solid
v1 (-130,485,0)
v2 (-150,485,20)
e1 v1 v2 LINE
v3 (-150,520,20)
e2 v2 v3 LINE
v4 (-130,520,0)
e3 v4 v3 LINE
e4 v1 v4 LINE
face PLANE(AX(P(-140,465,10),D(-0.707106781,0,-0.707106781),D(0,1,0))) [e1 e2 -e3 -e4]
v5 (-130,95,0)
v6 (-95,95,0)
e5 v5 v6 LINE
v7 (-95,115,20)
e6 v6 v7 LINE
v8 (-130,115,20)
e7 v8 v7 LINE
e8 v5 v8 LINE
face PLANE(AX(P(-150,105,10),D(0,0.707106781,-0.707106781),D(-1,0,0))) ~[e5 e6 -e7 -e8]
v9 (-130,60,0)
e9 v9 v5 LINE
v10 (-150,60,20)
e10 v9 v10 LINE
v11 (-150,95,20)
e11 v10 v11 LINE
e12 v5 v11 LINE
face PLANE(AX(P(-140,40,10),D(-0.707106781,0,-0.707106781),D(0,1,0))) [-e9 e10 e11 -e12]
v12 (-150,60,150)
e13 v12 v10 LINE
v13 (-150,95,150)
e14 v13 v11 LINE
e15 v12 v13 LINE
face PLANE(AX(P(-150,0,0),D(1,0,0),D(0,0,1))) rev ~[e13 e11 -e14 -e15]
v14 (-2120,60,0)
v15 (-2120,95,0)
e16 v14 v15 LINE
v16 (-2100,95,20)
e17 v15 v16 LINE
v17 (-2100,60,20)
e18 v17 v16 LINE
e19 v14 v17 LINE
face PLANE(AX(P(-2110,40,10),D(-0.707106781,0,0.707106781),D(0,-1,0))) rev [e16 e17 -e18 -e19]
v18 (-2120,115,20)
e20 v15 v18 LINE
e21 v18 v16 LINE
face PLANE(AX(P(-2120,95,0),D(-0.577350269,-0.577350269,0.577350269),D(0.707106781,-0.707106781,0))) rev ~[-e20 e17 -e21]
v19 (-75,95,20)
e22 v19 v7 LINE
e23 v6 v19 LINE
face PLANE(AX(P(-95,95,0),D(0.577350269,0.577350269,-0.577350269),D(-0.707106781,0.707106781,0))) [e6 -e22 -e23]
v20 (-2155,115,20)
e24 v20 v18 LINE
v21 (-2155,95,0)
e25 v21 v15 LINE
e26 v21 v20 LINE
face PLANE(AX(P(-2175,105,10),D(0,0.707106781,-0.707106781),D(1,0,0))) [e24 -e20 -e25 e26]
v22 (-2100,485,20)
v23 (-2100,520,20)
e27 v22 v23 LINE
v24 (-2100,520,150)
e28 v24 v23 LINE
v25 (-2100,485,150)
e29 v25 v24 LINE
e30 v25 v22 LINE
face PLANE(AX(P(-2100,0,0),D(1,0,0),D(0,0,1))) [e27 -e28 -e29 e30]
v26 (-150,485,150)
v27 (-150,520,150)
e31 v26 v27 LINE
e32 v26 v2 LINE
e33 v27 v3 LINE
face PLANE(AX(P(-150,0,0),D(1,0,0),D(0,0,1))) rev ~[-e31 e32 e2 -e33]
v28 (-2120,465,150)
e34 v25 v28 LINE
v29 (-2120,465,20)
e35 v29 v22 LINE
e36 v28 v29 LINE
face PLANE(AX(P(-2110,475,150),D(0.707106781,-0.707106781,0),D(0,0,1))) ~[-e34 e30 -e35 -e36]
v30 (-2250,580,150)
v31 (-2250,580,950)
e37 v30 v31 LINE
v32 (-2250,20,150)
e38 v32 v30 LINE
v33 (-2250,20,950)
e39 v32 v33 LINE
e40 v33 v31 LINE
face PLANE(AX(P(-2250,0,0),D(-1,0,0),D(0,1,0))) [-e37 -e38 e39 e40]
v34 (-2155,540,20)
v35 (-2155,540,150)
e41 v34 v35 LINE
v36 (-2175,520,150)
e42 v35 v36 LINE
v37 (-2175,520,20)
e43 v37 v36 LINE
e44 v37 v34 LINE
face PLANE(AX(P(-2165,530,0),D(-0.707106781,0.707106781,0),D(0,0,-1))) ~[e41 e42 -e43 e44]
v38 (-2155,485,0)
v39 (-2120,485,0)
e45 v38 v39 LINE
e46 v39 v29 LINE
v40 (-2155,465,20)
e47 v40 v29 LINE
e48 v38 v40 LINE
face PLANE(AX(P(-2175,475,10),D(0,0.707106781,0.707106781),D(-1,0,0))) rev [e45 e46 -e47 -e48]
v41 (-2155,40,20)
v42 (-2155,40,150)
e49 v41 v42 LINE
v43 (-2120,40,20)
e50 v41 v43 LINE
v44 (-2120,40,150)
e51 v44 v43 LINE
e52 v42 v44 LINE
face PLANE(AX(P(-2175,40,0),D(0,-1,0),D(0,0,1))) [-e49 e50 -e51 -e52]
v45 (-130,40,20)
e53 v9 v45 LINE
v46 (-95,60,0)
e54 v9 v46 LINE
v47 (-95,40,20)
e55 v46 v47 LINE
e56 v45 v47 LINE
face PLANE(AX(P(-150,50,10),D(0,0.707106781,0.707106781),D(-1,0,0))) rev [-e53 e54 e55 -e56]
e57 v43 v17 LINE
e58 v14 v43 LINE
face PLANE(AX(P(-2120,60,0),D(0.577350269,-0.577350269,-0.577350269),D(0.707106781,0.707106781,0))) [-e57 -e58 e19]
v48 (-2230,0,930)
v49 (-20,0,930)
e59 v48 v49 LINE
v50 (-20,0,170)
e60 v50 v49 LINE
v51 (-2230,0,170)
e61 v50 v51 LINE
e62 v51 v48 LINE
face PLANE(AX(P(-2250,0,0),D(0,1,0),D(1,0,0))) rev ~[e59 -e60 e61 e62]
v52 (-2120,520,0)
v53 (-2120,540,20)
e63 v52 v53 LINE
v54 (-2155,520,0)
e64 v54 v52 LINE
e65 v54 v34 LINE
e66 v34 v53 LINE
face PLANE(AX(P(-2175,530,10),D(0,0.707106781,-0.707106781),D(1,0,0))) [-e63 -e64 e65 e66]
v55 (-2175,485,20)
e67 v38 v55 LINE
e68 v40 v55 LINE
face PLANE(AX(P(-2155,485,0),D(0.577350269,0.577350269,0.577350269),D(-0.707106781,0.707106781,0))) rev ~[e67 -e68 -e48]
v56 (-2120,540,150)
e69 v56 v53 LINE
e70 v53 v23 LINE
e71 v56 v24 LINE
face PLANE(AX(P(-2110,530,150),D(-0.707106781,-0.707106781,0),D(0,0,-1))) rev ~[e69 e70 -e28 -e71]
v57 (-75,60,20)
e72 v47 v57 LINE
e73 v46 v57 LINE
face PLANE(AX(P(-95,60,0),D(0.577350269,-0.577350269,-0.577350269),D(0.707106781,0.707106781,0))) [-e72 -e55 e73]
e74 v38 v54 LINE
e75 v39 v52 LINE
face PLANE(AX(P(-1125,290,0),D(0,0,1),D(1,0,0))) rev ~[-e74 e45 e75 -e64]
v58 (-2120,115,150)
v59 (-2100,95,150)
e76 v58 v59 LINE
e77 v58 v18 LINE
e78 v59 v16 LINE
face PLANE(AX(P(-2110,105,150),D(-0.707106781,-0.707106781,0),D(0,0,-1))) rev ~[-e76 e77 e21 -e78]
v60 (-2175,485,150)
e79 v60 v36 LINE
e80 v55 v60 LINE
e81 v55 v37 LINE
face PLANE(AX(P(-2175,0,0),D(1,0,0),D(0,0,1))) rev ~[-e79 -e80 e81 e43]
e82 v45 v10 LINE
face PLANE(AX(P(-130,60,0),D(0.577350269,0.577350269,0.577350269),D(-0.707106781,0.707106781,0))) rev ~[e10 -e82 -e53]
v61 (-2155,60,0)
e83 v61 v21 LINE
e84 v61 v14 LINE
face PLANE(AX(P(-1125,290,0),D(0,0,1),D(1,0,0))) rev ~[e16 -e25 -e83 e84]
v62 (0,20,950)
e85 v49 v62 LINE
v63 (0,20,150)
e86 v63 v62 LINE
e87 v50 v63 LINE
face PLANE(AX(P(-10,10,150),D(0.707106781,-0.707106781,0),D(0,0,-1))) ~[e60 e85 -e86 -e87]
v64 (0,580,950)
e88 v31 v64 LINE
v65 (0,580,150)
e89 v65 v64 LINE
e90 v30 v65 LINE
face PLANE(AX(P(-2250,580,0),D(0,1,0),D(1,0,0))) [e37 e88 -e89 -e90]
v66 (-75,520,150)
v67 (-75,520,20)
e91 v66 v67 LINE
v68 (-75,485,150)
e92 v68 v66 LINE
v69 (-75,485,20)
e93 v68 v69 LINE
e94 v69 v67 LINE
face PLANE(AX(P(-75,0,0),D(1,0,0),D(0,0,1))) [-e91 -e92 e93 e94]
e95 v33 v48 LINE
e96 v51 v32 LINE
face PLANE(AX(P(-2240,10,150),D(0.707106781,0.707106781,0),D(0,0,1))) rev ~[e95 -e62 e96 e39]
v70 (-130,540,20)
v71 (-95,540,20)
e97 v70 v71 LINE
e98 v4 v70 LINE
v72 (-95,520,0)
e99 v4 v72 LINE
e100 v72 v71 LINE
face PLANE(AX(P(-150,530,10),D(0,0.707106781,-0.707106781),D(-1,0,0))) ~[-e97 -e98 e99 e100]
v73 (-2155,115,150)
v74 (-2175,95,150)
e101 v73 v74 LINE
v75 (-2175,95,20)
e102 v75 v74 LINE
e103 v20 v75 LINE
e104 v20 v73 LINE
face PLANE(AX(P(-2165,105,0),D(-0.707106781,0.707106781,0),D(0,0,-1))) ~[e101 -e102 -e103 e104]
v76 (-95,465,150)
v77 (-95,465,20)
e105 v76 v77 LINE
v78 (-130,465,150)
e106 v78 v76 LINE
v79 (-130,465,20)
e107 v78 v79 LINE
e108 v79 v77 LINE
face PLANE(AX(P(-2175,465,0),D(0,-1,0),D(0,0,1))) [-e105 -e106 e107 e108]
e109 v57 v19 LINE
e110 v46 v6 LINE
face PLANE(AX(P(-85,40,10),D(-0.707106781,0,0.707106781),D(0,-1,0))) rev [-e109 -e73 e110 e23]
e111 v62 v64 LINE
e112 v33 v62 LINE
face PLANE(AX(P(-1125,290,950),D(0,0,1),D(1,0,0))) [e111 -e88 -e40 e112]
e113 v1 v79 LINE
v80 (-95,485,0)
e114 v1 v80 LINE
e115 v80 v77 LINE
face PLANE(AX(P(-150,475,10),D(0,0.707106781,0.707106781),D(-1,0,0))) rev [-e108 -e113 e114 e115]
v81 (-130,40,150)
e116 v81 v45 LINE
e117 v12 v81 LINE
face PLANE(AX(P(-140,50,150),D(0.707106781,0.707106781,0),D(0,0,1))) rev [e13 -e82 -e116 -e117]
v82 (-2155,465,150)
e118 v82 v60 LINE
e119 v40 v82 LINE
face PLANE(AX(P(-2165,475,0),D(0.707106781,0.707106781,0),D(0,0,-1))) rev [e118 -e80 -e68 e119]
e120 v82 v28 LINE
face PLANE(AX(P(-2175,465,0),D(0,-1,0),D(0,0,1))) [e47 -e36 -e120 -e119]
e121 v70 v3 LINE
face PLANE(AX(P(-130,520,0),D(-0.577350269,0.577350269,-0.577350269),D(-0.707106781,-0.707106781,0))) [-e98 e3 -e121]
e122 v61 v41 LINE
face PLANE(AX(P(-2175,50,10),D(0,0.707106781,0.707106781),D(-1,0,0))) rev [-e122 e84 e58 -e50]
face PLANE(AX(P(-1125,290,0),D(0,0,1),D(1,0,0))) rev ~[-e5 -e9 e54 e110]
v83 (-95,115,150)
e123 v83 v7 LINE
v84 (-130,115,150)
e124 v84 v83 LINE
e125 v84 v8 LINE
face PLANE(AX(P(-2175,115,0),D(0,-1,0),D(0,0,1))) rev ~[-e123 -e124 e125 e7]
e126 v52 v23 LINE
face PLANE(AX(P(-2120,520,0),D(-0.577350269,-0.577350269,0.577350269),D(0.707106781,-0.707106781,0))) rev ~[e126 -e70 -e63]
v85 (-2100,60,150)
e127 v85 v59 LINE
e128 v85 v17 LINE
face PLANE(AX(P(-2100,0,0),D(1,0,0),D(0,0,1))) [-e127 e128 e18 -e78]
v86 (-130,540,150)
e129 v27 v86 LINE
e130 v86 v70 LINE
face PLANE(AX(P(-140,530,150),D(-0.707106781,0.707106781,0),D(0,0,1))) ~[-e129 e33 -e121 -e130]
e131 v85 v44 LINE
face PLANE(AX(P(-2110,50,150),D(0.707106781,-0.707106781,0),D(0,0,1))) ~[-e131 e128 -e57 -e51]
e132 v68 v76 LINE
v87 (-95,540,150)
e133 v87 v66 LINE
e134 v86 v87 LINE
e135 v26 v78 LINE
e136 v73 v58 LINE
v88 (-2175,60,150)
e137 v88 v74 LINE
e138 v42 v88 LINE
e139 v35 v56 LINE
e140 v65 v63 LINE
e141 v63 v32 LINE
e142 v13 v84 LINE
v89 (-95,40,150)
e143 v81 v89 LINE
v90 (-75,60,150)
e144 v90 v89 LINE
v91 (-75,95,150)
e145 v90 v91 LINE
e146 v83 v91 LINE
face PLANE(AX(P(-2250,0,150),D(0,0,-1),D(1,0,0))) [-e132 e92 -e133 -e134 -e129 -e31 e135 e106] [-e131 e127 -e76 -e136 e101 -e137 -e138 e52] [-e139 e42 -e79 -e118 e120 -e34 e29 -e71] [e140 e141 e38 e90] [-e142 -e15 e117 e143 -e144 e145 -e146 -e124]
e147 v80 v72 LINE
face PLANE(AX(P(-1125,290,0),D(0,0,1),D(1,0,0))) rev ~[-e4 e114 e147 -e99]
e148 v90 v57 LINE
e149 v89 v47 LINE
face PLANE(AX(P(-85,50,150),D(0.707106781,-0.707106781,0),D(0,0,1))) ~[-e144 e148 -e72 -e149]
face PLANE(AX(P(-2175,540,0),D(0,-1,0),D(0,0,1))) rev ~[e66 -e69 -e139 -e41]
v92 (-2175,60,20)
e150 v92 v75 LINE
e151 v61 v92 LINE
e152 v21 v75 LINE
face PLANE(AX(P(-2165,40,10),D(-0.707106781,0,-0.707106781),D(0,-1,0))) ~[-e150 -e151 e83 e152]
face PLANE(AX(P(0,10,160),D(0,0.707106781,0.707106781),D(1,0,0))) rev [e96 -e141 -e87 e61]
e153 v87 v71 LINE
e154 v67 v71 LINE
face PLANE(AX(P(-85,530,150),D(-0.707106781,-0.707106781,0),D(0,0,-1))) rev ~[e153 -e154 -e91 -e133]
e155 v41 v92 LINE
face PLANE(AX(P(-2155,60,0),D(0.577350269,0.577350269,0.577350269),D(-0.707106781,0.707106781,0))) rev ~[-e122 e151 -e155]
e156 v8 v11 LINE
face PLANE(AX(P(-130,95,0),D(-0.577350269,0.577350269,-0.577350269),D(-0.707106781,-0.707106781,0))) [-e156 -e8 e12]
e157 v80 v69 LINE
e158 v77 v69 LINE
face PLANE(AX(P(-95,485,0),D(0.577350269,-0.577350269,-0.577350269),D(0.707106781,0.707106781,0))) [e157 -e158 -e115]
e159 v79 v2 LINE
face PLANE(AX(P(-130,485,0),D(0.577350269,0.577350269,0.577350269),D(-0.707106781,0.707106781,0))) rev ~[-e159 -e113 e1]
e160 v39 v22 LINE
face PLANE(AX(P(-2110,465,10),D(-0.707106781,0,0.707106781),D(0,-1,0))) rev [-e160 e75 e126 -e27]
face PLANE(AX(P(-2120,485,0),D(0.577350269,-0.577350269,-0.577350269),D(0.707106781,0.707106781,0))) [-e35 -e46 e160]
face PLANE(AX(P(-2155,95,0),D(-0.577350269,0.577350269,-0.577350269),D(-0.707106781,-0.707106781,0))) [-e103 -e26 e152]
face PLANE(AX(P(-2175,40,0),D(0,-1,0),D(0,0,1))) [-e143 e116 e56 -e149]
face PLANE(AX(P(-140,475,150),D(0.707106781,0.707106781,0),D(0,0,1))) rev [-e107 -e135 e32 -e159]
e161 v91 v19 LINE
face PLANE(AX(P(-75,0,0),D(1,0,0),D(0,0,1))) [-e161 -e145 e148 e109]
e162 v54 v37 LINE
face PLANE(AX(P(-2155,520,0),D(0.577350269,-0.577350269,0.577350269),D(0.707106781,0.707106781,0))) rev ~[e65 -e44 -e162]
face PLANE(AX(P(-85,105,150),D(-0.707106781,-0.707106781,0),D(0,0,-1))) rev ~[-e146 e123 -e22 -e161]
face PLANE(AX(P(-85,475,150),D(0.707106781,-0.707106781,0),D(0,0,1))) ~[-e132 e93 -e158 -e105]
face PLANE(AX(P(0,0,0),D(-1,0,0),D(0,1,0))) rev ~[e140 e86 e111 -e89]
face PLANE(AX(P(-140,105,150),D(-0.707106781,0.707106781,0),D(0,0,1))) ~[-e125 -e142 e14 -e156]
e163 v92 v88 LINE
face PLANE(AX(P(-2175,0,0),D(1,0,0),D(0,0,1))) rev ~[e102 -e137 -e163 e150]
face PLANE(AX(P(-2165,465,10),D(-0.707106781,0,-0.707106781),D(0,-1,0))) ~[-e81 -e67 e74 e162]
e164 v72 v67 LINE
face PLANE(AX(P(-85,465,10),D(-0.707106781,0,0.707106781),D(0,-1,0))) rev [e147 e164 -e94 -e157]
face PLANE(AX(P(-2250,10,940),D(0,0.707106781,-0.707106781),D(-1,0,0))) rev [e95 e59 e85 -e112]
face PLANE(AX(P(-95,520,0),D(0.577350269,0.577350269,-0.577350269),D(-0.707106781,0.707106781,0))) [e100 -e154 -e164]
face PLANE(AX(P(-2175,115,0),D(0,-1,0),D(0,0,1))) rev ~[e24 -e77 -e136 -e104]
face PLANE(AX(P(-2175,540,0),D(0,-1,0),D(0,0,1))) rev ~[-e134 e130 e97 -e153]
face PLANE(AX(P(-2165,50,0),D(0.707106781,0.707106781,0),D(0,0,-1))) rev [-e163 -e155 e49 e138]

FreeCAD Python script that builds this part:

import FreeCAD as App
import Part
import Sketcher
from FreeCAD import Vector
Q = App.Units.Quantity


def edges_at(feature, points):
    """Names of the edges that pass closest to the given points."""
    edges = feature.Shape.Edges
    near = lambda p: min(range(len(edges)), key=lambda i: edges[i].distToShape(Part.Vertex(*p))[0])
    return sorted({f"Edge{near(p) + 1}" for p in points})

doc = App.newDocument("Part")
body = doc.addObject("PartDesign::Body", "Body")

# Sketch on XY plane
sketch1 = body.newObject("Sketcher::SketchObject", "Sketch")
sketch1.AttachmentSupport = (doc.getObject("XY_Plane"), [""])
sketch1.MapMode = "FlatFace"
sketch1.addGeometry([
    Part.LineSegment(Vector(-2250, 580, 0), Vector(-2250, 0, 0)),
    Part.LineSegment(Vector(-2250, 0, 0), Vector(0, 0, 0)),
    Part.LineSegment(Vector(0, 0, 0), Vector(0, 580, 0)),
    Part.LineSegment(Vector(0, 580, 0), Vector(-2250, 580, 0)),
], False)
sketch1.addConstraint([
    Sketcher.Constraint("Coincident", 0, 2, 1, 1),
    Sketcher.Constraint("Coincident", 1, 2, 2, 1),
    Sketcher.Constraint("Coincident", 2, 2, 3, 1),
    Sketcher.Constraint("Coincident", 3, 2, 0, 1),
    Sketcher.Constraint("Vertical", 0),
    Sketcher.Constraint("Horizontal", 1),
    Sketcher.Constraint("Vertical", 2),
    Sketcher.Constraint("Horizontal", 3),
    Sketcher.Constraint("Coincident", 1, 2, -1, 1),
    Sketcher.Constraint("DistanceX", 1, 1, 1, 2, Q("2250 mm")),
    Sketcher.Constraint("DistanceY", 0, 2, 0, 1, Q("580 mm")),
])
pad1 = body.newObject("PartDesign::Pad", "Pad")
pad1.Profile = sketch1
pad1.Length = 950

# Sketch on XZ plane
sketch2 = body.newObject("Sketcher::SketchObject", "Sketch001")
sketch2.AttachmentSupport = (doc.getObject("XZ_Plane"), [""])
sketch2.MapMode = "FlatFace"
sketch2.addGeometry([
    Part.LineSegment(Vector(-2100, 150, 0), Vector(-2100, 0, 0)),  # 0
    Part.LineSegment(Vector(-2100, 0, 0), Vector(-150, 0, 0)),  # 1
    Part.LineSegment(Vector(-150, 0, 0), Vector(-150, 150, 0)),  # 2
    Part.LineSegment(Vector(-150, 150, 0), Vector(-2100, 150, 0)),  # 3
    Part.LineSegment(Vector(-2250, 150, 0), Vector(-2250, 0, 0)),  # 4
    Part.LineSegment(Vector(-2250, 0, 0), Vector(-2175, 0, 0)),  # 5
    Part.LineSegment(Vector(-2175, 0, 0), Vector(-2175, 150, 0)),  # 6
    Part.LineSegment(Vector(-2175, 150, 0), Vector(-2250, 150, 0)),  # 7
    Part.LineSegment(Vector(-75, 150, 0), Vector(-75, 0, 0)),  # 8
    Part.LineSegment(Vector(-75, 0, 0), Vector(0, 0, 0)),  # 9
    Part.LineSegment(Vector(0, 0, 0), Vector(0, 150, 0)),  # 10
    Part.LineSegment(Vector(0, 150, 0), Vector(-75, 150, 0)),  # 11
], False)
sketch2.addConstraint([
    Sketcher.Constraint("Coincident", 0, 2, 1, 1),
    Sketcher.Constraint("Coincident", 1, 2, 2, 1),
    Sketcher.Constraint("Coincident", 2, 2, 3, 1),
    Sketcher.Constraint("Coincident", 3, 2, 0, 1),
    Sketcher.Constraint("Coincident", 4, 2, 5, 1),
    Sketcher.Constraint("Coincident", 5, 2, 6, 1),
    Sketcher.Constraint("Coincident", 6, 2, 7, 1),
    Sketcher.Constraint("Coincident", 7, 2, 4, 1),
    Sketcher.Constraint("Coincident", 8, 2, 9, 1),
    Sketcher.Constraint("Coincident", 9, 2, 10, 1),
    Sketcher.Constraint("Coincident", 10, 2, 11, 1),
    Sketcher.Constraint("Coincident", 11, 2, 8, 1),
    Sketcher.Constraint("Vertical", 0),
    Sketcher.Constraint("Horizontal", 1),
    Sketcher.Constraint("Vertical", 2),
    Sketcher.Constraint("Horizontal", 3),
    Sketcher.Constraint("Vertical", 4),
    Sketcher.Constraint("Horizontal", 5),
    Sketcher.Constraint("Vertical", 6),
    Sketcher.Constraint("Horizontal", 7),
    Sketcher.Constraint("Vertical", 8),
    Sketcher.Constraint("Horizontal", 9),
    Sketcher.Constraint("Vertical", 10),
    Sketcher.Constraint("Horizontal", 11),
    Sketcher.Constraint("Coincident", 9, 2, -1, 1),
    Sketcher.Constraint("PointOnObject", 0, 2, -1),
    Sketcher.Constraint("PointOnObject", 4, 2, -1),
    Sketcher.Constraint("Horizontal", 3, 2, 6, 2),
    Sketcher.Constraint("Horizontal", 7, 2, 10, 2),
    Sketcher.Constraint("Equal", 7, 9),
    Sketcher.Constraint("DistanceX", 1, 1, 1, 2, Q("1950 mm")),
    Sketcher.Constraint("DistanceX", 5, 1, 5, 2, Q("75 mm")),
    Sketcher.Constraint("DistanceY", 0, 2, 0, 1, Q("150 mm")),
    Sketcher.Constraint("DistanceX", 0, 2, -1, 1, Q("2100 mm")),
    Sketcher.Constraint("DistanceX", 4, 2, -1, 1, Q("2250 mm")),
])
pocket1 = body.newObject("PartDesign::Pocket", "Pocket")
pocket1.Profile = sketch2
pocket1.Length = 600

# Sketch on YZ plane
sketch3 = body.newObject("Sketcher::SketchObject", "Sketch002")
sketch3.AttachmentSupport = (doc.getObject("YZ_Plane"), [""])
sketch3.MapMode = "FlatFace"
sketch3.AttachmentOffset = App.Placement(Vector(0, 0, -2175), App.Rotation())
sketch3.addGeometry([
    Part.LineSegment(Vector(580, 150, 0), Vector(580, 0, 0)),  # 0
    Part.LineSegment(Vector(580, 0, 0), Vector(540, 0, 0)),  # 1
    Part.LineSegment(Vector(540, 0, 0), Vector(540, 150, 0)),  # 2
    Part.LineSegment(Vector(540, 150, 0), Vector(580, 150, 0)),  # 3
    Part.LineSegment(Vector(40, 150, 0), Vector(40, 0, 0)),  # 4
    Part.LineSegment(Vector(40, 0, 0), Vector(0, 0, 0)),  # 5
    Part.LineSegment(Vector(0, 0, 0), Vector(0, 150, 0)),  # 6
    Part.LineSegment(Vector(0, 150, 0), Vector(40, 150, 0)),  # 7
    Part.LineSegment(Vector(465, 150, 0), Vector(465, 0, 0)),  # 8
    Part.LineSegment(Vector(465, 0, 0), Vector(115, 0, 0)),  # 9
    Part.LineSegment(Vector(115, 0, 0), Vector(115, 150, 0)),  # 10
    Part.LineSegment(Vector(115, 150, 0), Vector(465, 150, 0)),  # 11
], False)
sketch3.addConstraint([
    Sketcher.Constraint("Coincident", 0, 2, 1, 1),
    Sketcher.Constraint("Coincident", 1, 2, 2, 1),
    Sketcher.Constraint("Coincident", 2, 2, 3, 1),
    Sketcher.Constraint("Coincident", 3, 2, 0, 1),
    Sketcher.Constraint("Coincident", 4, 2, 5, 1),
    Sketcher.Constraint("Coincident", 5, 2, 6, 1),
    Sketcher.Constraint("Coincident", 6, 2, 7, 1),
    Sketcher.Constraint("Coincident", 7, 2, 4, 1),
    Sketcher.Constraint("Coincident", 8, 2, 9, 1),
    Sketcher.Constraint("Coincident", 9, 2, 10, 1),
    Sketcher.Constraint("Coincident", 10, 2, 11, 1),
    Sketcher.Constraint("Coincident", 11, 2, 8, 1),
    Sketcher.Constraint("Vertical", 0),
    Sketcher.Constraint("Horizontal", 1),
    Sketcher.Constraint("Vertical", 2),
    Sketcher.Constraint("Horizontal", 3),
    Sketcher.Constraint("Vertical", 4),
    Sketcher.Constraint("Horizontal", 5),
    Sketcher.Constraint("Vertical", 6),
    Sketcher.Constraint("Horizontal", 7),
    Sketcher.Constraint("Vertical", 8),
    Sketcher.Constraint("Horizontal", 9),
    Sketcher.Constraint("Vertical", 10),
    Sketcher.Constraint("Horizontal", 11),
    Sketcher.Constraint("Coincident", 5, 2, -1, 1),
    Sketcher.Constraint("PointOnObject", 0, 2, -1),
    Sketcher.Constraint("PointOnObject", 8, 2, -1),
    Sketcher.Constraint("Horizontal", 3, 2, 6, 2),
    Sketcher.Constraint("Horizontal", 7, 2, 10, 2),
    Sketcher.Constraint("Equal", 3, 5),
    Sketcher.Constraint("DistanceX", 1, 2, 1, 1, Q("40 mm")),
    Sketcher.Constraint("DistanceX", 9, 2, 9, 1, Q("350 mm")),
    Sketcher.Constraint("DistanceY", 0, 2, 0, 1, Q("150 mm")),
    Sketcher.Constraint("DistanceX", -1, 1, 0, 2, Q("580 mm")),
    Sketcher.Constraint("DistanceX", -1, 1, 8, 2, Q("465 mm")),
])
pocket2 = body.newObject("PartDesign::Pocket", "Pocket001")
pocket2.Profile = sketch3
pocket2.Length = 2250
pocket2.Reversed = True
doc.recompute()

chamfer = body.newObject("PartDesign::Chamfer", "Chamfer")
chamfer.Base = (pocket2, edges_at(pocket2, [
    (0, 0, 550),
    (-1125, 0, 150),
    (-2250, 0, 550),
    (-1125, 0, 950),
    (-2175, 40, 75),
    (-2100, 40, 75),
    (-2100, 115, 75),
    (-2175, 465, 75),
    (-2100, 465, 75),
    (-2100, 540, 75),
    (-2175, 540, 75),
    (-2175, 115, 75),
    (-75, 540, 75),
    (-75, 465, 75),
    (-75, 115, 75),
    (-75, 40, 75),
    (-150, 465, 75),
    (-150, 540, 75),
    (-150, 115, 75),
    (-150, 40, 75),
    (-112.5, 40, 0),
    (-75, 77.5, 0),
    (-112.5, 115, 0),
    (-150, 77.5, 0),
    (-112.5, 465, 0),
    (-75, 502.5, 0),
    (-112.5, 540, 0),
    (-150, 502.5, 0),
    (-2137.5, 465, 0),
    (-2175, 502.5, 0),
    (-2137.5, 540, 0),
    (-2100, 502.5, 0),
    (-2137.5, 115, 0),
    (-2137.5, 40, 0),
    (-2100, 77.5, 0),
    (-2175, 77.5, 0),
]))
chamfer.Size = 20

doc.recompute()
